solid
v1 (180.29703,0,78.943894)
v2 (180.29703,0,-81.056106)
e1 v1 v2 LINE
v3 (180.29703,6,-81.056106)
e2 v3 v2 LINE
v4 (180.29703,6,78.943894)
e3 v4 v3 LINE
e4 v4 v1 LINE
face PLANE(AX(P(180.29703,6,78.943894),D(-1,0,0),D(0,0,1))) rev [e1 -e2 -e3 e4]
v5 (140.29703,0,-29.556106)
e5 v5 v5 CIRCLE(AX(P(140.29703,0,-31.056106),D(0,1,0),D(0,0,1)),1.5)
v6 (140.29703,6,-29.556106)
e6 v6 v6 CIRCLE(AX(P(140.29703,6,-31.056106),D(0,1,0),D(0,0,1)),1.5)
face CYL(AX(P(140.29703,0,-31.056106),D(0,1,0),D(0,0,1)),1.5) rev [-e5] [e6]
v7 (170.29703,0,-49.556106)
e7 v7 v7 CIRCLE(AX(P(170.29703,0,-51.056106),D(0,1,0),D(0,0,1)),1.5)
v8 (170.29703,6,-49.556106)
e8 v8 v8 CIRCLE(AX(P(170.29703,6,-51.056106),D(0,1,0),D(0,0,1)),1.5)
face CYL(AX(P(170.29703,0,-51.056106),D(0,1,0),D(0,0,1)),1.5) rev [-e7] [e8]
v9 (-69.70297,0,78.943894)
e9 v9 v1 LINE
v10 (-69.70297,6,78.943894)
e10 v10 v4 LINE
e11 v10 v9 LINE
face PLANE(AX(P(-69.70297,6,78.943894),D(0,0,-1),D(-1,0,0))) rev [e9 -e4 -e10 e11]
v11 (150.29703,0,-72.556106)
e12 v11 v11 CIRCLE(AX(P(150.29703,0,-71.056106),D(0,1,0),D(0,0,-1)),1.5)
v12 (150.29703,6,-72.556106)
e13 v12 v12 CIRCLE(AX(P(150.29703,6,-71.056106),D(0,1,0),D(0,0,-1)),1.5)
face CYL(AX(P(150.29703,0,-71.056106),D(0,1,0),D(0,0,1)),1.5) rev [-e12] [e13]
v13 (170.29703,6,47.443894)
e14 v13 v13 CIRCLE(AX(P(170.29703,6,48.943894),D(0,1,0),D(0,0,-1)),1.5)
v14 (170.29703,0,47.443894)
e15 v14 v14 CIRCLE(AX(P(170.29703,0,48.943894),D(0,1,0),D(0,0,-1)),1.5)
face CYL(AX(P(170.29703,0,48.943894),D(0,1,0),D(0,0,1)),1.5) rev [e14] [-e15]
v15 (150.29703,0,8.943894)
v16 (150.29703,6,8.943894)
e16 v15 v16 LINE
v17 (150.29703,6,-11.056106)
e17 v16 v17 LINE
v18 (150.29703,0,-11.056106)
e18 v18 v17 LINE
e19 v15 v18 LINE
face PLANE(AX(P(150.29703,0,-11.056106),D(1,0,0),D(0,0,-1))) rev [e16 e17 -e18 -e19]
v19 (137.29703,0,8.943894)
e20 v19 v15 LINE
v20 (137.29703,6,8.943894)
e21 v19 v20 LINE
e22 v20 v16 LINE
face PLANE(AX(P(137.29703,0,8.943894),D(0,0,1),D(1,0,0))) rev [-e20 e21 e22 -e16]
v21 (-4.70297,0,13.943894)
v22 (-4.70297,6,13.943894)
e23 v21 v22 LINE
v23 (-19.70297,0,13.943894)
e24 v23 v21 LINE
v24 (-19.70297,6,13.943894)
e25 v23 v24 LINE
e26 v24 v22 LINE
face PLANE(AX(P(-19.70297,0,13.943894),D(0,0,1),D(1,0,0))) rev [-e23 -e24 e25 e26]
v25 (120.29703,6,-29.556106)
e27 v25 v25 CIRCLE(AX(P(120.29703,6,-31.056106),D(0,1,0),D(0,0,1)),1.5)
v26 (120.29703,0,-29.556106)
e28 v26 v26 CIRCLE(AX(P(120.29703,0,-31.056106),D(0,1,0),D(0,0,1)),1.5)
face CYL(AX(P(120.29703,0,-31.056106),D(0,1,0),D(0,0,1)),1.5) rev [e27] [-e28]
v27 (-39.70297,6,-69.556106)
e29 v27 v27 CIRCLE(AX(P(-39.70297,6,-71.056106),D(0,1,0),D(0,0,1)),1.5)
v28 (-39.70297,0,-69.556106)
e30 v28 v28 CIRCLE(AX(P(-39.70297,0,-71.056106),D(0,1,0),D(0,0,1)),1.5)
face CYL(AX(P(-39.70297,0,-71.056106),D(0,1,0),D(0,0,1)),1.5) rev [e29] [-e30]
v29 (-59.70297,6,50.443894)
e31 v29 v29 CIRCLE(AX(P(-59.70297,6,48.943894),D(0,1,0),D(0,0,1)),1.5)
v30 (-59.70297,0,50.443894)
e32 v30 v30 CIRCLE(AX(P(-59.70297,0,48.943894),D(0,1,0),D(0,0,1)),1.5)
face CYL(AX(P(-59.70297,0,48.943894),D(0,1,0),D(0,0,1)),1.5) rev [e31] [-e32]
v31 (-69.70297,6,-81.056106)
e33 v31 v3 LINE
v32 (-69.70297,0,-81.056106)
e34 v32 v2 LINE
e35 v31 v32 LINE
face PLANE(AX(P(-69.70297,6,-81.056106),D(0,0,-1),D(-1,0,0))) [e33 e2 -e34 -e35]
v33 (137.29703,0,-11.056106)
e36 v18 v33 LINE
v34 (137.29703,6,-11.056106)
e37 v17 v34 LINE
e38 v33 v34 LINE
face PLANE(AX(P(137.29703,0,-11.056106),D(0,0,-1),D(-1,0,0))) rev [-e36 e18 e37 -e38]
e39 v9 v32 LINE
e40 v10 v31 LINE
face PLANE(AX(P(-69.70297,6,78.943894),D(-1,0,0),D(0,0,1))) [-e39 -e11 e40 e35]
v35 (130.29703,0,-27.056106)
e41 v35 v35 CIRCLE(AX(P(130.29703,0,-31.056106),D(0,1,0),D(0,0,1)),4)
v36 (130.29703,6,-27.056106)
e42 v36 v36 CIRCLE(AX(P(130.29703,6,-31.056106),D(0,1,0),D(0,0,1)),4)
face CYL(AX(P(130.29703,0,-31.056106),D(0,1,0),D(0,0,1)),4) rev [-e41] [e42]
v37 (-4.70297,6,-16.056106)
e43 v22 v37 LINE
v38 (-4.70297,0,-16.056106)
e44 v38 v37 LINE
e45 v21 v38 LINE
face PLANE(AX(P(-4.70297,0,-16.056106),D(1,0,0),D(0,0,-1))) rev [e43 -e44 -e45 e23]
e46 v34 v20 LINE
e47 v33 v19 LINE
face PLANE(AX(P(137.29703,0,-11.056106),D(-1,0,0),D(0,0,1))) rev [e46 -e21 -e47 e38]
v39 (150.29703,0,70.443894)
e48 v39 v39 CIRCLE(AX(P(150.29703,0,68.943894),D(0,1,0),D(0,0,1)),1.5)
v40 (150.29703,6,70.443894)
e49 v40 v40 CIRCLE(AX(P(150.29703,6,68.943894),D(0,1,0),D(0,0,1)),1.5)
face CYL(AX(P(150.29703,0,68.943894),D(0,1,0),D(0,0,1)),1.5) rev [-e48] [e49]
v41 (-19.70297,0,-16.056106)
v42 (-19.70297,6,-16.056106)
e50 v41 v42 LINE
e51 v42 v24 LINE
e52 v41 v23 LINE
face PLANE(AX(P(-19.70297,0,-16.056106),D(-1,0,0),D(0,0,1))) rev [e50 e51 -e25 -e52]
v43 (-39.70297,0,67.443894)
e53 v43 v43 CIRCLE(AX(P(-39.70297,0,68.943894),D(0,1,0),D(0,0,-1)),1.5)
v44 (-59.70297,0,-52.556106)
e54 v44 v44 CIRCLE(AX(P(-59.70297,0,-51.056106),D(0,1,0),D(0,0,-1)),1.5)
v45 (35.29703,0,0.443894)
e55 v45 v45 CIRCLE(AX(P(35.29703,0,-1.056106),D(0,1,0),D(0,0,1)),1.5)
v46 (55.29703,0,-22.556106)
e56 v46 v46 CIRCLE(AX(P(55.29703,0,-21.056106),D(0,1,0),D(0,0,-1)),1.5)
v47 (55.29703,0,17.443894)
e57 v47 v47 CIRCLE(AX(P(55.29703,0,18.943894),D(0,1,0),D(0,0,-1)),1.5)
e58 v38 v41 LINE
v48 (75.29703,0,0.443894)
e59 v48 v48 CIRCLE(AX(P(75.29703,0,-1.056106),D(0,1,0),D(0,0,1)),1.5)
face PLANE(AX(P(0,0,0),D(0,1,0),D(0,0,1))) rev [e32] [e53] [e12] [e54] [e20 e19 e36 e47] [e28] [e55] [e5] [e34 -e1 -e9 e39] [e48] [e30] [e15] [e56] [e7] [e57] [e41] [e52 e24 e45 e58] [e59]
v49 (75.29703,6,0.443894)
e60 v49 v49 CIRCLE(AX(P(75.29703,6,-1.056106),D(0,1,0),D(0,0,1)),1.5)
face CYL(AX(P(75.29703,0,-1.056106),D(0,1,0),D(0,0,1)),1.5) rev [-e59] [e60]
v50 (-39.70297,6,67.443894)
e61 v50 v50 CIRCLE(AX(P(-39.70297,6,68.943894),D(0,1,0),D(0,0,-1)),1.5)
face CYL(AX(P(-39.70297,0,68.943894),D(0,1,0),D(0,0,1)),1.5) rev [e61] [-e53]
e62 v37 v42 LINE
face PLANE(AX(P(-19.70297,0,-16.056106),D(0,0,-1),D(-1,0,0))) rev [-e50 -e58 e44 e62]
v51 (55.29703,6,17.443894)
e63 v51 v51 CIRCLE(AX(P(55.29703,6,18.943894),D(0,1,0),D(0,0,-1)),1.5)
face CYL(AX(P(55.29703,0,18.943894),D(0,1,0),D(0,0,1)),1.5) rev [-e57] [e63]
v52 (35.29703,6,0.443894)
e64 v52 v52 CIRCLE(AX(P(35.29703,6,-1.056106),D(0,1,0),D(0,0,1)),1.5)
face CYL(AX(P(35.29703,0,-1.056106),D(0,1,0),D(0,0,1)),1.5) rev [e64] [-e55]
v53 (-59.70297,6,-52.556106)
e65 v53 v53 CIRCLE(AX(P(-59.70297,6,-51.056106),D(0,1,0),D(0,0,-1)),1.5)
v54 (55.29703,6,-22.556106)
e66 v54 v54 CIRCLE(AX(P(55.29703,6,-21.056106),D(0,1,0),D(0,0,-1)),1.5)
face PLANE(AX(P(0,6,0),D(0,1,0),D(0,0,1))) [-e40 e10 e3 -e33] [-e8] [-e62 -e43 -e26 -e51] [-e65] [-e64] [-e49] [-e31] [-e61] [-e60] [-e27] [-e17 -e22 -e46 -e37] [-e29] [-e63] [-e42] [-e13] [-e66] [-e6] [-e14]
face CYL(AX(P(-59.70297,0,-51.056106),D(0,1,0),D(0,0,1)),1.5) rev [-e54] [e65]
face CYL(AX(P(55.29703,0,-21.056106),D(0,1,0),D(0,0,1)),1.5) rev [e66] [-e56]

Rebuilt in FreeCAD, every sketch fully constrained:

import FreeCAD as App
import Part
import Sketcher
from FreeCAD import Vector

doc = App.newDocument("Part")
body = doc.addObject("PartDesign::Body", "Body")

# Sketch on XZ plane
sketch1 = body.newObject("Sketcher::SketchObject", "Sketch")
sketch1.AttachmentSupport = (doc.getObject("XZ_Plane"), [""])
sketch1.MapMode = "FlatFace"
sketch1.addGeometry([
    Part.LineSegment(Vector(-69.70297, -81.056106, 0), Vector(-69.70297, 78.943894, 0)),
    Part.LineSegment(Vector(-69.70297, 78.943894, 0), Vector(180.29703, 78.943894, 0)),
    Part.LineSegment(Vector(180.29703, 78.943894, 0), Vector(180.29703, -81.056106, 0)),
    Part.LineSegment(Vector(180.29703, -81.056106, 0), Vector(-69.70297, -81.056106, 0)),
], False)
sketch1.addConstraint([
    Sketcher.Constraint("Coincident", 0, 2, 1, 1),
    Sketcher.Constraint("Coincident", 1, 2, 2, 1),
    Sketcher.Constraint("Coincident", 2, 2, 3, 1),
    Sketcher.Constraint("Coincident", 3, 2, 0, 1),
    Sketcher.Constraint("Vertical", 0),
    Sketcher.Constraint("Horizontal", 1),
    Sketcher.Constraint("Vertical", 2),
    Sketcher.Constraint("Horizontal", 3),
    Sketcher.Constraint("DistanceX", 1, 1, 1, 2, 250.0),
    Sketcher.Constraint("DistanceY", 0, 1, 0, 2, 160.0),
    Sketcher.Constraint("DistanceX", 0, 2, -1, 1, 69.70297),
    Sketcher.Constraint("DistanceY", -1, 1, 0, 2, 78.943894),
])
pad1 = body.newObject("PartDesign::Pad", "Pad")
pad1.Profile = sketch1
pad1.Length = 6
pad1.Reversed = True

# Sketch on XZ plane
sketch2 = body.newObject("Sketcher::SketchObject", "Sketch001")
sketch2.AttachmentSupport = (doc.getObject("XZ_Plane"), [""])
sketch2.MapMode = "FlatFace"
sketch2.AttachmentOffset = App.Placement(Vector(0, 0, -6), App.Rotation())
sketch2.addGeometry([
    Part.Circle(Vector(-39.70297, -71.056106, 0), Vector(0, 0, 1), 1.5),  # 0
    Part.Circle(Vector(-59.70297, -51.056106, 0), Vector(0, 0, 1), 1.5),  # 1
    Part.Circle(Vector(150.29703, -71.056106, 0), Vector(0, 0, 1), 1.5),  # 2
    Part.Circle(Vector(170.29703, -51.056106, 0), Vector(0, 0, 1), 1.5),  # 3
    Part.Circle(Vector(170.29703, 48.943894, 0), Vector(0, 0, 1), 1.5),  # 4
    Part.Circle(Vector(150.29703, 68.943894, 0), Vector(0, 0, 1), 1.5),  # 5
    Part.Circle(Vector(-59.70297, 48.943894, 0), Vector(0, 0, 1), 1.5),  # 6
    Part.Circle(Vector(-39.70297, 68.943894, 0), Vector(0, 0, 1), 1.5),  # 7
    Part.Circle(Vector(35.29703, -1.056106, 0), Vector(0, 0, 1), 1.5),  # 8
    Part.Circle(Vector(55.29703, -21.056106, 0), Vector(0, 0, 1), 1.5),  # 9
    Part.Circle(Vector(55.29703, 18.943894, 0), Vector(0, 0, 1), 1.5),  # 10
    Part.Circle(Vector(75.29703, -1.056106, 0), Vector(0, 0, 1), 1.5),  # 11
], False)
sketch2.addConstraint([
    Sketcher.Constraint("Equal", 0, 1),
    Sketcher.Constraint("Equal", 1, 2),
    Sketcher.Constraint("Equal", 2, 3),
    Sketcher.Constraint("Equal", 3, 4),
    Sketcher.Constraint("Equal", 4, 5),
    Sketcher.Constraint("Equal", 5, 6),
    Sketcher.Constraint("Equal", 6, 7),
    Sketcher.Constraint("Equal", 7, 8),
    Sketcher.Constraint("Equal", 8, 9),
    Sketcher.Constraint("Equal", 9, 10),
    Sketcher.Constraint("Equal", 10, 11),
    Sketcher.Constraint("Horizontal", 0, 3, 2, 3),
    Sketcher.Constraint("Horizontal", 1, 3, 3, 3),
    Sketcher.Constraint("Horizontal", 4, 3, 6, 3),
    Sketcher.Constraint("Horizontal", 5, 3, 7, 3),
    Sketcher.Constraint("Horizontal", 8, 3, 11, 3),
    Sketcher.Constraint("Vertical", 3, 3, 4, 3),
    Sketcher.Constraint("Vertical", 2, 3, 5, 3),
    Sketcher.Constraint("Vertical", 1, 3, 6, 3),
    Sketcher.Constraint("Vertical", 0, 3, 7, 3),
    Sketcher.Constraint("Vertical", 9, 3, 10, 3),
    Sketcher.Constraint("Diameter", 0, 3.0),
    Sketcher.Constraint("DistanceX", 1, 3, 0, 3, 20.0),
    Sketcher.Constraint("DistanceY", 0, 3, 1, 3, 20.0),
    Sketcher.Constraint("DistanceX", 0, 3, 2, 3, 190.0),
    Sketcher.Constraint("DistanceX", 2, 3, 3, 3, 20.0),
    Sketcher.Constraint("DistanceY", 3, 3, 4, 3, 100.0),
    Sketcher.Constraint("DistanceY", 4, 3, 5, 3, 20.0),
    Sketcher.Constraint("DistanceX", 0, 3, 8, 3, 75.0),
    Sketcher.Constraint("DistanceY", 0, 3, 8, 3, 70.0),
    Sketcher.Constraint("DistanceX", 8, 3, 9, 3, 20.0),
    Sketcher.Constraint("DistanceY", 9, 3, 8, 3, 20.0),
    Sketcher.Constraint("DistanceY", 8, 3, 10, 3, 20.0),
    Sketcher.Constraint("DistanceX", 9, 3, 11, 3, 20.0),
    Sketcher.Constraint("DistanceX", 0, 3, -1, 1, 39.70297),
    Sketcher.Constraint("DistanceY", 0, 3, -1, 1, 71.056106),
])
pocket1 = body.newObject("PartDesign::Pocket", "Pocket")
pocket1.Profile = sketch2
pocket1.Length = 6
pocket1.Reversed = True

# Sketch on XZ plane
sketch3 = body.newObject("Sketcher::SketchObject", "Sketch002")
sketch3.AttachmentSupport = (doc.getObject("XZ_Plane"), [""])
sketch3.MapMode = "FlatFace"
sketch3.AttachmentOffset = App.Placement(Vector(0, 0, -6), App.Rotation())
sketch3.addGeometry([
    Part.Circle(Vector(140.29703, -31.056106, 0), Vector(0, 0, 1), 1.5),  # 0
    Part.Circle(Vector(120.29703, -31.056106, 0), Vector(0, 0, 1), 1.5),  # 1
    Part.Circle(Vector(130.29703, -31.056106, 0), Vector(0, 0, 1), 4),  # 2
    Part.LineSegment(Vector(137.29703, -11.056106, 0), Vector(137.29703, 8.943894, 0)),  # 3
    Part.LineSegment(Vector(137.29703, 8.943894, 0), Vector(150.29703, 8.943894, 0)),  # 4
    Part.LineSegment(Vector(150.29703, 8.943894, 0), Vector(150.29703, -11.056106, 0)),  # 5
    Part.LineSegment(Vector(150.29703, -11.056106, 0), Vector(137.29703, -11.056106, 0)),  # 6
], False)
sketch3.addConstraint([
    Sketcher.Constraint("Coincident", 3, 2, 4, 1),
    Sketcher.Constraint("Coincident", 4, 2, 5, 1),
    Sketcher.Constraint("Coincident", 5, 2, 6, 1),
    Sketcher.Constraint("Coincident", 6, 2, 3, 1),
    Sketcher.Constraint("Vertical", 3),
    Sketcher.Constraint("Horizontal", 4),
    Sketcher.Constraint("Vertical", 5),
    Sketcher.Constraint("Horizontal", 6),
    Sketcher.Constraint("Equal", 0, 1),
    Sketcher.Constraint("Horizontal", 0, 3, 1, 3),
    Sketcher.Constraint("Horizontal", 1, 3, 2, 3),
    Sketcher.Constraint("Diameter", 0, 3.0),
    Sketcher.Constraint("Diameter", 2, 8.0),
    Sketcher.Constraint("DistanceX", 4, 1, 4, 2, 13.0),
    Sketcher.Constraint("DistanceY", 3, 1, 3, 2, 20.0),
    Sketcher.Constraint("DistanceX", 1, 3, 0, 3, 20.0),
    Sketcher.Constraint("DistanceX", 1, 3, 2, 3, 10.0),
    Sketcher.Constraint("DistanceX", 3, 2, 0, 3, 3.0),
    Sketcher.Constraint("DistanceY", 0, 3, 3, 2, 40.0),
    Sketcher.Constraint("DistanceX", -1, 1, 0, 3, 140.29703),
    Sketcher.Constraint("DistanceY", 0, 3, -1, 1, 31.056106),
])
pocket2 = body.newObject("PartDesign::Pocket", "Pocket001")
pocket2.Profile = sketch3
pocket2.Length = 6
pocket2.Reversed = True

# Sketch on XZ plane
sketch4 = body.newObject("Sketcher::SketchObject", "Sketch003")
sketch4.AttachmentSupport = (doc.getObject("XZ_Plane"), [""])
sketch4.MapMode = "FlatFace"
sketch4.AttachmentOffset = App.Placement(Vector(0, 0, -6), App.Rotation())
sketch4.addGeometry([
    Part.LineSegment(Vector(-19.70297, -16.056106, 0), Vector(-19.70297, 13.943894, 0)),
    Part.LineSegment(Vector(-19.70297, 13.943894, 0), Vector(-4.70297, 13.943894, 0)),
    Part.LineSegment(Vector(-4.70297, 13.943894, 0), Vector(-4.70297, -16.056106, 0)),
    Part.LineSegment(Vector(-4.70297, -16.056106, 0), Vector(-19.70297, -16.056106, 0)),
], False)
sketch4.addConstraint([
    Sketcher.Constraint("Coincident", 0, 2, 1, 1),
    Sketcher.Constraint("Coincident", 1, 2, 2, 1),
    Sketcher.Constraint("Coincident", 2, 2, 3, 1),
    Sketcher.Constraint("Coincident", 3, 2, 0, 1),
    Sketcher.Constraint("Vertical", 0),
    Sketcher.Constraint("Horizontal", 1),
    Sketcher.Constraint("Vertical", 2),
    Sketcher.Constraint("Horizontal", 3),
    Sketcher.Constraint("DistanceX", 1, 1, 1, 2, 15.0),
    Sketcher.Constraint("DistanceY", 0, 1, 0, 2, 30.0),
    Sketcher.Constraint("DistanceX", 0, 2, -1, 1, 19.70297),
    Sketcher.Constraint("DistanceY", -1, 1, 0, 2, 13.943894),
])
pocket3 = body.newObject("PartDesign::Pocket", "Pocket002")
pocket3.Profile = sketch4
pocket3.Length = 6
pocket3.Reversed = True

doc.recompute()
